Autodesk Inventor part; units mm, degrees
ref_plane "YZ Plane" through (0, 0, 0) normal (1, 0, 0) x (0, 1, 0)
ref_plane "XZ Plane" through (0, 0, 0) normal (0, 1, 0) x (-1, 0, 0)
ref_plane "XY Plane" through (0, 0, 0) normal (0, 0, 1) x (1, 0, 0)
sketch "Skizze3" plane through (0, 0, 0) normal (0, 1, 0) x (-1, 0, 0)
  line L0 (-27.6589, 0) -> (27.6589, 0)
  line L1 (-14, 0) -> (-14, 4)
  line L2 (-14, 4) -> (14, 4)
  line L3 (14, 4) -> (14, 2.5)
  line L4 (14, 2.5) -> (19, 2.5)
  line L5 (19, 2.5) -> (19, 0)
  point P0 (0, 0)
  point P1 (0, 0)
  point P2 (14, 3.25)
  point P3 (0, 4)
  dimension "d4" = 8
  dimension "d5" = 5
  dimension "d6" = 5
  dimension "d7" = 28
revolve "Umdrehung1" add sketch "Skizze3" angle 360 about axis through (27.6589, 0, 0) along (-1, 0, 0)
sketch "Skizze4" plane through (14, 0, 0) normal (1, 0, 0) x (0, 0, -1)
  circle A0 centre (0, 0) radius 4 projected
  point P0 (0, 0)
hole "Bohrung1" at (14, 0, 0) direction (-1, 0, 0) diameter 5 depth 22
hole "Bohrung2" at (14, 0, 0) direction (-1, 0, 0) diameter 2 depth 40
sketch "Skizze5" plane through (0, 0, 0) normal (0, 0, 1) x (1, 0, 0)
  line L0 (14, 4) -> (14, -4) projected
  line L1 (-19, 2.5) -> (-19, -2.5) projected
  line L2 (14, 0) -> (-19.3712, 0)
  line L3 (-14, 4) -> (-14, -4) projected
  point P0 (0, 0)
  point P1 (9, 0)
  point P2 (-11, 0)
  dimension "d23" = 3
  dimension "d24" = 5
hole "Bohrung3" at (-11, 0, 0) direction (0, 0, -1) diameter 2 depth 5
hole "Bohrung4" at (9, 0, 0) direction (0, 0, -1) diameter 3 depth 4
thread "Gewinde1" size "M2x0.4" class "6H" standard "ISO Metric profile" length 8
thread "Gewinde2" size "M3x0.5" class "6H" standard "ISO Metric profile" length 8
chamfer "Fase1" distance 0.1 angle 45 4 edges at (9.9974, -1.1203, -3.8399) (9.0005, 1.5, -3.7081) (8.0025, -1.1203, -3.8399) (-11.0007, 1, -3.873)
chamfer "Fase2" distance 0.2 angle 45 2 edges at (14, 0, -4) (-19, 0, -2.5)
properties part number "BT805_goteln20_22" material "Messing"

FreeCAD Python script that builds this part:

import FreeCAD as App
import Part
import Sketcher

V = App.Vector
Q = App.Units.Quantity


def edges_at(feature, points):
    """Names of the edges that pass closest to the given points."""
    edges = feature.Shape.Edges
    near = lambda p: min(range(len(edges)), key=lambda i: edges[i].distToShape(Part.Vertex(*p))[0])
    return sorted({f"Edge{near(p) + 1}" for p in points})

doc = App.newDocument("Part")
params = doc.addObject("Spreadsheet::Sheet", "Params")
for row, (alias, value) in enumerate([
    ("sketch1_width", "5 mm"),
    ("sketch1_width2", "28 mm"),
    ("sketch1_height", "4 mm"),
    ("sketch1_height2", "2.5 mm"),
    ("revolution_angle", "360 deg"),
    ("sketch2_diameter", "5 mm"),
    ("hole_diameter", "5 mm"),
    ("hole_depth", "22 mm"),
    ("sketch3_diameter", "2 mm"),
    ("hole2_diameter", "2 mm"),
    ("hole2_depth", "40 mm"),
    ("sketch4_diameter", "2 mm"),
    ("hole3_diameter", "2 mm"),
    ("hole3_depth", "5 mm"),
    ("sketch5_diameter", "3 mm"),
    ("hole4_diameter", "3 mm"),
    ("hole4_depth", "4 mm"),
    ("chamfer_size", "0.1 mm"),
    ("chamfer2_size", "0.2 mm"),
], start=1):
    params.set(f"A{row}", alias)
    params.set(f"B{row}", "=" + value)
    params.setAlias(f"B{row}", alias)

body = doc.addObject("PartDesign::Body", "Body")

sketch1 = body.newObject("Sketcher::SketchObject", "Sketch")
sketch1.AttachmentSupport = (doc.getObject("XZ_Plane"), [""])
sketch1.MapMode = "FlatFace"
sketch1.addGeometry([
    Part.LineSegment(V(14, 4, 0), V(14, 0, 0)),
    Part.LineSegment(V(14, 0, 0), V(-19, 0, 0)),
    Part.LineSegment(V(-19, 0, 0), V(-19, 2.5, 0)),
    Part.LineSegment(V(-19, 2.5, 0), V(-14, 2.5, 0)),
    Part.LineSegment(V(-14, 2.5, 0), V(-14, 4, 0)),
    Part.LineSegment(V(-14, 4, 0), V(14, 4, 0)),
], False)
sketch1.addConstraint([
    Sketcher.Constraint("Coincident", 0, 2, 1, 1),
    Sketcher.Constraint("Coincident", 1, 2, 2, 1),
    Sketcher.Constraint("Coincident", 2, 2, 3, 1),
    Sketcher.Constraint("Coincident", 3, 2, 4, 1),
    Sketcher.Constraint("Coincident", 4, 2, 5, 1),
    Sketcher.Constraint("Coincident", 5, 2, 0, 1),
    Sketcher.Constraint("Vertical", 0),
    Sketcher.Constraint("Horizontal", 1),
    Sketcher.Constraint("Vertical", 2),
    Sketcher.Constraint("Horizontal", 3),
    Sketcher.Constraint("Vertical", 4),
    Sketcher.Constraint("Horizontal", 5),
    Sketcher.Constraint("PointOnObject", 0, 2, -1),
    Sketcher.Constraint("DistanceX", 3, 1, 3, 2, Q("5 mm")),
    Sketcher.Constraint("DistanceX", 5, 1, 5, 2, Q("28 mm")),
    Sketcher.Constraint("DistanceY", 0, 2, 0, 1, Q("4 mm")),
    Sketcher.Constraint("DistanceY", 2, 1, 2, 2, Q("2.5 mm")),
    Sketcher.Constraint("DistanceX", -1, 1, 0, 2, Q("14 mm")),
])
sketch1.setExpression("Constraints[13]", "Params.sketch1_width")
sketch1.setExpression("Constraints[14]", "Params.sketch1_width2")
sketch1.setExpression("Constraints[15]", "Params.sketch1_height")
sketch1.setExpression("Constraints[16]", "Params.sketch1_height2")
revolution = body.newObject("PartDesign::Revolution", "Revolution")
revolution.Profile = sketch1
revolution.ReferenceAxis = (sketch1, ["H_Axis"])
revolution.setExpression("Angle", "Params.revolution_angle")

sketch2 = body.newObject("Sketcher::SketchObject", "Sketch001")
sketch2.AttachmentSupport = (doc.getObject("YZ_Plane"), [""])
sketch2.MapMode = "FlatFace"
sketch2.AttachmentOffset = App.Placement(V(0, 0, 14), App.Rotation())
sketch2.addGeometry(Part.Circle(V(0, 0, 0), V(0, 0, 1), 2.5), False)
sketch2.addConstraint([
    Sketcher.Constraint("Coincident", 0, 3, -1, 1),
    Sketcher.Constraint("Diameter", 0, Q("5 mm")),
])
sketch2.setExpression("Constraints[1]", "Params.sketch2_diameter")
doc.recompute()
hole = body.newObject("PartDesign::Hole", "Hole")
hole.Profile = sketch2
hole.ThreadType = "None"
hole.setExpression("Diameter", "Params.hole_diameter")
hole.DepthType = "Dimension"
hole.setExpression("Depth", "Params.hole_depth")
hole.DrillPoint = "Flat"

sketch3 = body.newObject("Sketcher::SketchObject", "Sketch002")
sketch3.AttachmentSupport = (doc.getObject("YZ_Plane"), [""])
sketch3.MapMode = "FlatFace"
sketch3.AttachmentOffset = App.Placement(V(0, 0, 14), App.Rotation())
sketch3.addGeometry(Part.Circle(V(0, 0, 0), V(0, 0, 1), 1), False)
sketch3.addConstraint([
    Sketcher.Constraint("Coincident", 0, 3, -1, 1),
    Sketcher.Constraint("Diameter", 0, Q("2 mm")),
])
sketch3.setExpression("Constraints[1]", "Params.sketch3_diameter")
doc.recompute()
hole2 = body.newObject("PartDesign::Hole", "Hole001")
hole2.Profile = sketch3
hole2.ThreadType = "None"
hole2.setExpression("Diameter", "Params.hole2_diameter")
hole2.DepthType = "Dimension"
hole2.setExpression("Depth", "Params.hole2_depth")
hole2.DrillPoint = "Flat"

sketch4 = body.newObject("Sketcher::SketchObject", "Sketch003")
sketch4.AttachmentSupport = (doc.getObject("XY_Plane"), [""])
sketch4.MapMode = "FlatFace"
sketch4.addGeometry(Part.Circle(V(-11, 0, 0), V(0, 0, 1), 1), False)
sketch4.addConstraint([
    Sketcher.Constraint("PointOnObject", 0, 3, -1),
    Sketcher.Constraint("Diameter", 0, Q("2 mm")),
    Sketcher.Constraint("DistanceX", 0, 3, -1, 1, Q("11 mm")),
])
sketch4.setExpression("Constraints[1]", "Params.sketch4_diameter")
doc.recompute()
hole3 = body.newObject("PartDesign::Hole", "Hole002")
hole3.Profile = sketch4
hole3.ThreadType = "None"
hole3.setExpression("Diameter", "Params.hole3_diameter")
hole3.DepthType = "Dimension"
hole3.setExpression("Depth", "Params.hole3_depth")
hole3.DrillPoint = "Flat"

sketch5 = body.newObject("Sketcher::SketchObject", "Sketch004")
sketch5.AttachmentSupport = (doc.getObject("XY_Plane"), [""])
sketch5.MapMode = "FlatFace"
sketch5.addGeometry(Part.Circle(V(9, 0, 0), V(0, 0, 1), 1.5), False)
sketch5.addConstraint([
    Sketcher.Constraint("PointOnObject", 0, 3, -1),
    Sketcher.Constraint("Diameter", 0, Q("3 mm")),
    Sketcher.Constraint("DistanceX", -1, 1, 0, 3, Q("9 mm")),
])
sketch5.setExpression("Constraints[1]", "Params.sketch5_diameter")
doc.recompute()
hole4 = body.newObject("PartDesign::Hole", "Hole003")
hole4.Profile = sketch5
hole4.ThreadType = "None"
hole4.setExpression("Diameter", "Params.hole4_diameter")
hole4.DepthType = "Dimension"
hole4.setExpression("Depth", "Params.hole4_depth")
hole4.DrillPoint = "Flat"
doc.recompute()

chamfer = body.newObject("PartDesign::Chamfer", "Chamfer")
chamfer.Base = (hole4, edges_at(hole4, [
    (9.997, -1.12, -3.84),
    (9.001, 1.5, -3.708),
    (8.002, -1.12, -3.84),
    (-11.001, 1, -3.873),
]))
chamfer.setExpression("Size", "Params.chamfer_size")
doc.recompute()

chamfer2 = body.newObject("PartDesign::Chamfer", "Chamfer001")
chamfer2.Base = (chamfer, edges_at(chamfer, [(14, 0, -4), (-19, 0, -2.5)]))
chamfer2.setExpression("Size", "Params.chamfer2_size")

doc.recompute()
